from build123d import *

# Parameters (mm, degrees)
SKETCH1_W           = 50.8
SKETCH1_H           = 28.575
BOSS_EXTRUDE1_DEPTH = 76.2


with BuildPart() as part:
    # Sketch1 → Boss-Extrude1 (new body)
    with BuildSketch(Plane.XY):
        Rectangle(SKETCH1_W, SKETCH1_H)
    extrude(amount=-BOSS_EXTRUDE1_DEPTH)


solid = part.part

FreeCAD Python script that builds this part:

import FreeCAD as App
import Part
import Sketcher

V = App.Vector
Q = App.Units.Quantity


def add_polygon(sketch, points):
    """Adds a closed chain of lines whose ends are joined by coincident constraints."""
    first, n = sketch.GeometryCount, len(points)
    for a, b in zip(points, points[1:] + points[:1]):
        sketch.addGeometry(Part.LineSegment(App.Vector(*a, 0), App.Vector(*b, 0)), False)
    for i in range(n):
        sketch.addConstraint(Sketcher.Constraint("Coincident", first + i, 2, first + (i + 1) % n, 1))

doc = App.newDocument("Part")
body = doc.addObject("PartDesign::Body", "Body")

# Sketch on XY plane
sketch1 = body.newObject("Sketcher::SketchObject", "Sketch")
sketch1.AttachmentSupport = (doc.getObject("XY_Plane"), [""])
sketch1.MapMode = "FlatFace"
add_polygon(sketch1, [(-25, 14), (-25, -14), (25, -14), (25, 14)])  # lines 0-3
sketch1.addConstraint([
    Sketcher.Constraint("Vertical", 0),
    Sketcher.Constraint("Horizontal", 1),
    Sketcher.Constraint("Vertical", 2),
    Sketcher.Constraint("Horizontal", 3),
    Sketcher.Constraint("Symmetric", 0, 2, 2, 2, -1, 1),
    Sketcher.Constraint("DistanceX", 1, 1, 1, 2, Q("2 in")),
    Sketcher.Constraint("DistanceY", 0, 2, 0, 1, Q("1.125 in")),
])
pad1 = body.newObject("PartDesign::Pad", "Pad")
pad1.Profile = sketch1
pad1.Length = Q("3 in")
pad1.Reversed = True

doc.recompute()
